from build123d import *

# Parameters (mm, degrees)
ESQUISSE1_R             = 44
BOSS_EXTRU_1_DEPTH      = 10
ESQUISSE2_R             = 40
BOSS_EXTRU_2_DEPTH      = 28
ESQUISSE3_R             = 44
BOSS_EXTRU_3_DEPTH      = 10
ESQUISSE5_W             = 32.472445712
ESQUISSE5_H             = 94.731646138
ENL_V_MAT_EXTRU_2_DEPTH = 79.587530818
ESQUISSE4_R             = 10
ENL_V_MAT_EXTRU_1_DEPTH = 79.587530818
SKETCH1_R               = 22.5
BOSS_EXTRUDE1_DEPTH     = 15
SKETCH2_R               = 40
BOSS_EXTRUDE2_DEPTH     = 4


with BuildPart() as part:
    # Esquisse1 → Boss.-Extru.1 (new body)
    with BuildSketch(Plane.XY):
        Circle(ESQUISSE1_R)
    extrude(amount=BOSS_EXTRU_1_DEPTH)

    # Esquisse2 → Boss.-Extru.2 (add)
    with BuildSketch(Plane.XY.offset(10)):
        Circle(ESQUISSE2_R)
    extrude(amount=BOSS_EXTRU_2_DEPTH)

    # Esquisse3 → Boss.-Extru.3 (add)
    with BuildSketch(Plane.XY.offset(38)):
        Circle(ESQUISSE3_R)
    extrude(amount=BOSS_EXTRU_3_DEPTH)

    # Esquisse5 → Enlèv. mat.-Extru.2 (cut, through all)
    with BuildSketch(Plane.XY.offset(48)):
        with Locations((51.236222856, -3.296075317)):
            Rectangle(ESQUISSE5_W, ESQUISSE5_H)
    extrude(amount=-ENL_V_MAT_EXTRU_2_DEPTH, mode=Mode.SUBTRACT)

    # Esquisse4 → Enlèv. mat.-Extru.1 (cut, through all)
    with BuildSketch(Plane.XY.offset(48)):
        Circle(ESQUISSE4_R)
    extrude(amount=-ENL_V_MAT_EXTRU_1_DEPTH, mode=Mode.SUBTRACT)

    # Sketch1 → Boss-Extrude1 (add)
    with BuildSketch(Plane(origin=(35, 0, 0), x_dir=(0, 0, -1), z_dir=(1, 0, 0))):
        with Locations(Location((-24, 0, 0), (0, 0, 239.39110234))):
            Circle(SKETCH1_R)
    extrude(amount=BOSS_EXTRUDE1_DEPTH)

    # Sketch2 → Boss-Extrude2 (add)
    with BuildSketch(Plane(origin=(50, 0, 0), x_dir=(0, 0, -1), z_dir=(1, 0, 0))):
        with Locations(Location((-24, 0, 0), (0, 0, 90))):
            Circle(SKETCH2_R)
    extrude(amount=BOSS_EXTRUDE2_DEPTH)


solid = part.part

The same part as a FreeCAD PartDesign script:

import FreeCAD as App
import Part
import Sketcher
from FreeCAD import Vector


def add_polygon(sketch, points):
    """Adds a closed chain of lines whose ends are joined by coincident constraints."""
    first, n = sketch.GeometryCount, len(points)
    for a, b in zip(points, points[1:] + points[:1]):
        sketch.addGeometry(Part.LineSegment(App.Vector(*a, 0), App.Vector(*b, 0)), False)
    for i in range(n):
        sketch.addConstraint(Sketcher.Constraint("Coincident", first + i, 2, first + (i + 1) % n, 1))

doc = App.newDocument("Part")
body = doc.addObject("PartDesign::Body", "Body")

# Sketch on XY plane
sketch1 = body.newObject("Sketcher::SketchObject", "Sketch")
sketch1.AttachmentSupport = (doc.getObject("XY_Plane"), [""])
sketch1.MapMode = "FlatFace"
sketch1.addGeometry(Part.Circle(Vector(0, 0, 0), Vector(0, 0, 1), 44), False)
sketch1.addConstraint(Sketcher.Constraint("Coincident", 0, 3, -1, 1))
sketch1.addConstraint(Sketcher.Constraint("Diameter", 0, 88.0))
pad1 = body.newObject("PartDesign::Pad", "Pad")
pad1.Profile = sketch1
pad1.Length = 10

# Sketch on XY plane
sketch2 = body.newObject("Sketcher::SketchObject", "Sketch001")
sketch2.AttachmentSupport = (doc.getObject("XY_Plane"), [""])
sketch2.MapMode = "FlatFace"
sketch2.AttachmentOffset = App.Placement(Vector(0, 0, 10), App.Rotation())
sketch2.addGeometry(Part.Circle(Vector(0, 0, 0), Vector(0, 0, 1), 40), False)
sketch2.addConstraint(Sketcher.Constraint("Coincident", 0, 3, -1, 1))
sketch2.addConstraint(Sketcher.Constraint("Diameter", 0, 80.0))
pad2 = body.newObject("PartDesign::Pad", "Pad001")
pad2.Profile = sketch2
pad2.Length = 28

# Sketch on XY plane
sketch3 = body.newObject("Sketcher::SketchObject", "Sketch002")
sketch3.AttachmentSupport = (doc.getObject("XY_Plane"), [""])
sketch3.MapMode = "FlatFace"
sketch3.AttachmentOffset = App.Placement(Vector(0, 0, 38), App.Rotation())
sketch3.addGeometry(Part.Circle(Vector(0, 0, 0), Vector(0, 0, 1), 44), False)
sketch3.addConstraint(Sketcher.Constraint("Coincident", 0, 3, -1, 1))
sketch3.addConstraint(Sketcher.Constraint("Diameter", 0, 88.0))
pad3 = body.newObject("PartDesign::Pad", "Pad002")
pad3.Profile = sketch3
pad3.Length = 10

# Sketch on XY plane
sketch4 = body.newObject("Sketcher::SketchObject", "Sketch003")
sketch4.AttachmentSupport = (doc.getObject("XY_Plane"), [""])
sketch4.MapMode = "FlatFace"
sketch4.AttachmentOffset = App.Placement(Vector(0, 0, 48), App.Rotation())
add_polygon(sketch4, [(35, 44), (35, -51), (67, -51), (67, 44)])  # lines 0-3
sketch4.addConstraint(Sketcher.Constraint("Vertical", 0))
sketch4.addConstraint(Sketcher.Constraint("Horizontal", 1))
sketch4.addConstraint(Sketcher.Constraint("Vertical", 2))
sketch4.addConstraint(Sketcher.Constraint("Horizontal", 3))
sketch4.addConstraint(Sketcher.Constraint("DistanceX", -1, 1, 0, 2, 35.0))
sketch4.addConstraint(Sketcher.Constraint("DistanceY", 0, 2, -1, 1, 50.661898))
sketch4.addConstraint(Sketcher.Constraint("DistanceX", 1, 1, 1, 2, 32.472446))
sketch4.addConstraint(Sketcher.Constraint("DistanceY", 0, 2, 0, 1, 94.731646))
pocket1 = body.newObject("PartDesign::Pocket", "Pocket")
pocket1.Profile = sketch4
pocket1.Type = "ThroughAll"

# Sketch on XY plane
sketch5 = body.newObject("Sketcher::SketchObject", "Sketch004")
sketch5.AttachmentSupport = (doc.getObject("XY_Plane"), [""])
sketch5.MapMode = "FlatFace"
sketch5.AttachmentOffset = App.Placement(Vector(0, 0, 48), App.Rotation())
sketch5.addGeometry(Part.Circle(Vector(0, 0, 0), Vector(0, 0, 1), 10), False)
sketch5.addConstraint(Sketcher.Constraint("Coincident", 0, 3, -1, 1))
sketch5.addConstraint(Sketcher.Constraint("Diameter", 0, 20.0))
pocket2 = body.newObject("PartDesign::Pocket", "Pocket001")
pocket2.Profile = sketch5
pocket2.Type = "ThroughAll"

# Sketch on YZ plane
sketch6 = body.newObject("Sketcher::SketchObject", "Sketch005")
sketch6.AttachmentSupport = (doc.getObject("YZ_Plane"), [""])
sketch6.MapMode = "FlatFace"
sketch6.AttachmentOffset = App.Placement(Vector(0, 0, 35), App.Rotation())
sketch6.addGeometry(Part.Circle(Vector(0, 24, 0), Vector(0, 0, 1), 22), False)
sketch6.addConstraint(Sketcher.Constraint("PointOnObject", 0, 3, -2))
sketch6.addConstraint(Sketcher.Constraint("Diameter", 0, 45.0))
sketch6.addConstraint(Sketcher.Constraint("DistanceY", -1, 1, 0, 3, 24.0))
pad4 = body.newObject("PartDesign::Pad", "Pad003")
pad4.Profile = sketch6
pad4.Length = 15

# Sketch on YZ plane
sketch7 = body.newObject("Sketcher::SketchObject", "Sketch006")
sketch7.AttachmentSupport = (doc.getObject("YZ_Plane"), [""])
sketch7.MapMode = "FlatFace"
sketch7.AttachmentOffset = App.Placement(Vector(0, 0, 50), App.Rotation())
sketch7.addGeometry(Part.Circle(Vector(0, 24, 0), Vector(0, 0, 1), 40), False)
sketch7.addConstraint(Sketcher.Constraint("PointOnObject", 0, 3, -2))
sketch7.addConstraint(Sketcher.Constraint("Diameter", 0, 80.0))
sketch7.addConstraint(Sketcher.Constraint("DistanceY", -1, 1, 0, 3, 24.0))
pad5 = body.newObject("PartDesign::Pad", "Pad004")
pad5.Profile = sketch7
pad5.Length = 4

doc.recompute()
